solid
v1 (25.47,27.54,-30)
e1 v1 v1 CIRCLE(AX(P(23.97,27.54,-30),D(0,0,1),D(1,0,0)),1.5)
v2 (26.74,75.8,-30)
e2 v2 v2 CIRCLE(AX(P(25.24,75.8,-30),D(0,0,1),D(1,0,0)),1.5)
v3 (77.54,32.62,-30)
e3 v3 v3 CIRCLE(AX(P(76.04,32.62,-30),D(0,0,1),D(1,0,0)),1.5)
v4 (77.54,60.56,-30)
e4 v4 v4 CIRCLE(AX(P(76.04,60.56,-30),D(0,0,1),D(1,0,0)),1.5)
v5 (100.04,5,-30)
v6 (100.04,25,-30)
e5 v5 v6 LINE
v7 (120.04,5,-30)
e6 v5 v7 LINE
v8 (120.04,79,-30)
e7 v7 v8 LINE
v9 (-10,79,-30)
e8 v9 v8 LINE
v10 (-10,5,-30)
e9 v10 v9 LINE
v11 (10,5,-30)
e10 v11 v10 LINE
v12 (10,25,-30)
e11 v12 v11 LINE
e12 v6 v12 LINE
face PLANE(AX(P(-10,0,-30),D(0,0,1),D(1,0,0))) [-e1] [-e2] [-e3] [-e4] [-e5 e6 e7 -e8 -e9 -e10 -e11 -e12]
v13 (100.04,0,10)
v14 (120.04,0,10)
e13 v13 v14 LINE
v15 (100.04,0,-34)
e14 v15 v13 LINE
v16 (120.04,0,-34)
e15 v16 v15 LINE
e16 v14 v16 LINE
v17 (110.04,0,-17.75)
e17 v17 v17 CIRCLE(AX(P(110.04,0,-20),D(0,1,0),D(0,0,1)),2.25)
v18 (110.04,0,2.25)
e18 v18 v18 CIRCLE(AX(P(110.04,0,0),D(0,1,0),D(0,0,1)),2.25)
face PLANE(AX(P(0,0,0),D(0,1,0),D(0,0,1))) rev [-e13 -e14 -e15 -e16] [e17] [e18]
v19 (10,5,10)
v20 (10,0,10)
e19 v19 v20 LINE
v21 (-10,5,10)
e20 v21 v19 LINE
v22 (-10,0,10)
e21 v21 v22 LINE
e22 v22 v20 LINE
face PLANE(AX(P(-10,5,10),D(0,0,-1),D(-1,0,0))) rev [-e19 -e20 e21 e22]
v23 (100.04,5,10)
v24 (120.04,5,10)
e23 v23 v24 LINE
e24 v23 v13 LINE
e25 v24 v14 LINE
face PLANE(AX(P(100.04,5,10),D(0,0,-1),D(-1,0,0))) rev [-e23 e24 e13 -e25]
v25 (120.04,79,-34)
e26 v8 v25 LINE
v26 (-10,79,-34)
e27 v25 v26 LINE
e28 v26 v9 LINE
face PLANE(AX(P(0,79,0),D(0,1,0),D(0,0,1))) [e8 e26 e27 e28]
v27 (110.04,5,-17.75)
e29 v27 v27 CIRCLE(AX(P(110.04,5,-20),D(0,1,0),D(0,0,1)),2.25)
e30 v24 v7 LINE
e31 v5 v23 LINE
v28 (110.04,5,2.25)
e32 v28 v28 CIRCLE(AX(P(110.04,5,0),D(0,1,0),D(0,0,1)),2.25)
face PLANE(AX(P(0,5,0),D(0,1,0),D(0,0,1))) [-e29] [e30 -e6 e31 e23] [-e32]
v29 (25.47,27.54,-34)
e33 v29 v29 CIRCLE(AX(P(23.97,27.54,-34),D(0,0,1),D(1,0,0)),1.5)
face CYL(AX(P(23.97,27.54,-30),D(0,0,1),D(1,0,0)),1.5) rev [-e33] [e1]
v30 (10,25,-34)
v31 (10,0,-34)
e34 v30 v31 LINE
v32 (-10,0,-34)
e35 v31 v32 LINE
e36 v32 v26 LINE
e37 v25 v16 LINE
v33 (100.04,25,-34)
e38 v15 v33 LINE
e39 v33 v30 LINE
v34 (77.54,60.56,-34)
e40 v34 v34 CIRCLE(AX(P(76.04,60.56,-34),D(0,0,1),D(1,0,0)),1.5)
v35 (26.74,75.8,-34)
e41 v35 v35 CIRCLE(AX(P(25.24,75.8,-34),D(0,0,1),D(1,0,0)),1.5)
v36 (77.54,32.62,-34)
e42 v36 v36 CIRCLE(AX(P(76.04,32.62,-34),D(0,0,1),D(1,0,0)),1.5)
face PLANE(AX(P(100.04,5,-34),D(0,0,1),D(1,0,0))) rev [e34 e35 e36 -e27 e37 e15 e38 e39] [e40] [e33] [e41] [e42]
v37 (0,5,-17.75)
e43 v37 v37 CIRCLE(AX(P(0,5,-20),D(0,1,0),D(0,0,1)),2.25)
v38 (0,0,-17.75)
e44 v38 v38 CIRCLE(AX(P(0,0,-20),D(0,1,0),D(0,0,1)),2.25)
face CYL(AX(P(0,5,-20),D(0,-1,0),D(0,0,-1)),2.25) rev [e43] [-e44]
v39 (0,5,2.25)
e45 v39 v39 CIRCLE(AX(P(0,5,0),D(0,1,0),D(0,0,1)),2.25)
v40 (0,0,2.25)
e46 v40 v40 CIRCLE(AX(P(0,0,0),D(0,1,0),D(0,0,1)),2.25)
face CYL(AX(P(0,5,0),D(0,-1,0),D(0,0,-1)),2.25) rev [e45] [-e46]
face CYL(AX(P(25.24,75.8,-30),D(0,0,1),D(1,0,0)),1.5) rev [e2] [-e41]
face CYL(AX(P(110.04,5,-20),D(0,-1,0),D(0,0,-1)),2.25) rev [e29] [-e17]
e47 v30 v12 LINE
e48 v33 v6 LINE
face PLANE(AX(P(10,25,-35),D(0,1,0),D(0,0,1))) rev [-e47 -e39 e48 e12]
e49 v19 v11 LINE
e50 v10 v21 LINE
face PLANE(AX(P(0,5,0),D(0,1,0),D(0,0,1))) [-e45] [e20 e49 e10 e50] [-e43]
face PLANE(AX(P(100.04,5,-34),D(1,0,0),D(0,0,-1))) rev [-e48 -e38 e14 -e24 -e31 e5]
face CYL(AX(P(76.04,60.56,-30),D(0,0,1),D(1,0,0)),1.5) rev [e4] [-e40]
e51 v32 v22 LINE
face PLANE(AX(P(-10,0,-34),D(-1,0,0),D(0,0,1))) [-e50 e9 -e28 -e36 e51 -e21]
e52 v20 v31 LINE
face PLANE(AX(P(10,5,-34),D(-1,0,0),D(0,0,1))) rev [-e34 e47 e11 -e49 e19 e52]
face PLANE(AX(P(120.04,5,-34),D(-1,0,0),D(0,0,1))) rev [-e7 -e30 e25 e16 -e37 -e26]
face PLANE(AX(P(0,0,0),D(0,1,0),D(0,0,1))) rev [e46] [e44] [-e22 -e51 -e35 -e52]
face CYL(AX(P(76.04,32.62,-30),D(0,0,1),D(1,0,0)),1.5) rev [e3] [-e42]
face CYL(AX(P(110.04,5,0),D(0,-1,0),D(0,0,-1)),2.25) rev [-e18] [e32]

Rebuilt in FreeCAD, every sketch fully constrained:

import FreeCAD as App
import Part
import Sketcher

doc = App.newDocument("Part")
body = doc.addObject("PartDesign::Body", "Body")

# Sketch on XZ plane
sketch1 = body.newObject("Sketcher::SketchObject", "Sketch")
sketch1.AttachmentSupport = (doc.getObject("XZ_Plane"), [""])
sketch1.MapMode = "FlatFace"
sketch1.addGeometry(Part.LineSegment(App.Vector(-10, -34, 0), App.Vector(-10, 10, 0)), False)
sketch1.addGeometry(Part.LineSegment(App.Vector(-10, 10, 0), App.Vector(10, 10, 0)), False)
sketch1.addGeometry(Part.LineSegment(App.Vector(10, 10, 0), App.Vector(10, -34, 0)), False)
sketch1.addGeometry(Part.LineSegment(App.Vector(10, -34, 0), App.Vector(-10, -34, 0)), False)
sketch1.addGeometry(Part.Circle(App.Vector(0, 0, 0), App.Vector(0, 0, 1), 2.25), False)
sketch1.addGeometry(Part.Circle(App.Vector(0, -20, 0), App.Vector(0, 0, 1), 2.25), False)
sketch1.addConstraint(Sketcher.Constraint("Coincident", 0, 2, 1, 1))
sketch1.addConstraint(Sketcher.Constraint("Coincident", 1, 2, 2, 1))
sketch1.addConstraint(Sketcher.Constraint("Coincident", 2, 2, 3, 1))
sketch1.addConstraint(Sketcher.Constraint("Coincident", 3, 2, 0, 1))
sketch1.addConstraint(Sketcher.Constraint("Vertical", 0))
sketch1.addConstraint(Sketcher.Constraint("Horizontal", 1))
sketch1.addConstraint(Sketcher.Constraint("Vertical", 2))
sketch1.addConstraint(Sketcher.Constraint("Horizontal", 3))
sketch1.addConstraint(Sketcher.Constraint("Coincident", 4, 3, -1, 1))
sketch1.addConstraint(Sketcher.Constraint("Equal", 4, 5))
sketch1.addConstraint(Sketcher.Constraint("PointOnObject", 5, 3, -2))
sketch1.addConstraint(Sketcher.Constraint("Diameter", 4, 4.5))
sketch1.addConstraint(Sketcher.Constraint("DistanceX", 1, 1, 1, 2, 20.0))
sketch1.addConstraint(Sketcher.Constraint("DistanceY", 0, 1, 0, 2, 44.0))
sketch1.addConstraint(Sketcher.Constraint("DistanceY", 5, 3, -1, 1, 20.0))
sketch1.addConstraint(Sketcher.Constraint("DistanceX", 0, 2, -1, 1, 10.0))
sketch1.addConstraint(Sketcher.Constraint("DistanceY", -1, 1, 0, 2, 10.0))
pad1 = body.newObject("PartDesign::Pad", "Pad")
pad1.Profile = sketch1
pad1.Length = 5
pad1.Reversed = True
body2 = doc.addObject("PartDesign::Body", "Body001")

# Sketch on XZ plane
sketch2 = body2.newObject("Sketcher::SketchObject", "Sketch001")
sketch2.AttachmentSupport = (doc.getObject("XZ_Plane001"), [""])
sketch2.MapMode = "FlatFace"
sketch2.addGeometry(Part.LineSegment(App.Vector(100.04, -34, 0), App.Vector(100.04, 10, 0)), False)
sketch2.addGeometry(Part.LineSegment(App.Vector(100.04, 10, 0), App.Vector(120.04, 10, 0)), False)
sketch2.addGeometry(Part.LineSegment(App.Vector(120.04, 10, 0), App.Vector(120.04, -34, 0)), False)
sketch2.addGeometry(Part.LineSegment(App.Vector(120.04, -34, 0), App.Vector(100.04, -34, 0)), False)
sketch2.addGeometry(Part.Circle(App.Vector(110.04, 0, 0), App.Vector(0, 0, 1), 2.25), False)
sketch2.addGeometry(Part.Circle(App.Vector(110.04, -20, 0), App.Vector(0, 0, 1), 2.25), False)
sketch2.addConstraint(Sketcher.Constraint("Coincident", 0, 2, 1, 1))
sketch2.addConstraint(Sketcher.Constraint("Coincident", 1, 2, 2, 1))
sketch2.addConstraint(Sketcher.Constraint("Coincident", 2, 2, 3, 1))
sketch2.addConstraint(Sketcher.Constraint("Coincident", 3, 2, 0, 1))
sketch2.addConstraint(Sketcher.Constraint("Vertical", 0))
sketch2.addConstraint(Sketcher.Constraint("Horizontal", 1))
sketch2.addConstraint(Sketcher.Constraint("Vertical", 2))
sketch2.addConstraint(Sketcher.Constraint("Horizontal", 3))
sketch2.addConstraint(Sketcher.Constraint("Equal", 4, 5))
sketch2.addConstraint(Sketcher.Constraint("PointOnObject", 4, 3, -1))
sketch2.addConstraint(Sketcher.Constraint("Vertical", 4, 3, 5, 3))
sketch2.addConstraint(Sketcher.Constraint("Diameter", 4, 4.5))
sketch2.addConstraint(Sketcher.Constraint("DistanceX", 1, 1, 1, 2, 20.0))
sketch2.addConstraint(Sketcher.Constraint("DistanceY", 0, 1, 0, 2, 44.0))
sketch2.addConstraint(Sketcher.Constraint("DistanceY", 5, 3, -1, 1, 20.0))
sketch2.addConstraint(Sketcher.Constraint("DistanceY", -1, 1, 0, 2, 10.0))
sketch2.addConstraint(Sketcher.Constraint("DistanceX", 0, 2, 4, 3, 10.0))
sketch2.addConstraint(Sketcher.Constraint("DistanceX", -1, 1, 4, 3, 110.04))
pad2 = body2.newObject("PartDesign::Pad", "Pad001")
pad2.Profile = sketch2
pad2.Length = 5
pad2.Reversed = True
body.AllowCompound = True
doc.recompute()

boolean = body.newObject("PartDesign::Boolean", "Boolean")
boolean.Type = "Fuse"
boolean.addObjects([body2])

# Sketch on XZ plane
sketch3 = body.newObject("Sketcher::SketchObject", "Sketch002")
sketch3.AttachmentSupport = (doc.getObject("XZ_Plane"), [""])
sketch3.MapMode = "FlatFace"
sketch3.AttachmentOffset = App.Placement(App.Vector(0, 0, -5), App.Rotation())
sketch3.addGeometry(Part.LineSegment(App.Vector(-10, -34, 0), App.Vector(-10, -30, 0)), False)
sketch3.addGeometry(Part.LineSegment(App.Vector(-10, -30, 0), App.Vector(120.04, -30, 0)), False)
sketch3.addGeometry(Part.LineSegment(App.Vector(120.04, -30, 0), App.Vector(120.04, -34, 0)), False)
sketch3.addGeometry(Part.LineSegment(App.Vector(120.04, -34, 0), App.Vector(-10, -34, 0)), False)
sketch3.addConstraint(Sketcher.Constraint("Coincident", 0, 2, 1, 1))
sketch3.addConstraint(Sketcher.Constraint("Coincident", 1, 2, 2, 1))
sketch3.addConstraint(Sketcher.Constraint("Coincident", 2, 2, 3, 1))
sketch3.addConstraint(Sketcher.Constraint("Coincident", 3, 2, 0, 1))
sketch3.addConstraint(Sketcher.Constraint("Vertical", 0))
sketch3.addConstraint(Sketcher.Constraint("Horizontal", 1))
sketch3.addConstraint(Sketcher.Constraint("Vertical", 2))
sketch3.addConstraint(Sketcher.Constraint("Horizontal", 3))
sketch3.addConstraint(Sketcher.Constraint("DistanceY", 0, 1, 0, 2, 4.0))
sketch3.addConstraint(Sketcher.Constraint("DistanceX", 0, 2, -1, 1, 10.0))
sketch3.addConstraint(Sketcher.Constraint("DistanceY", 0, 2, -1, 1, 30.0))
sketch3.addConstraint(Sketcher.Constraint("DistanceX", 1, 1, 1, 2, 130.04))
pad3 = body.newObject("PartDesign::Pad", "Pad002")
pad3.Profile = sketch3
pad3.Type = "TwoLengths"
pad3.Length = 74
pad3.Length2 = 5
pad3.Reversed = True

# Sketch on XY plane
sketch4 = body.newObject("Sketcher::SketchObject", "Sketch003")
sketch4.AttachmentSupport = (doc.getObject("XY_Plane"), [""])
sketch4.MapMode = "FlatFace"
sketch4.AttachmentOffset = App.Placement(App.Vector(0, 0, -30), App.Rotation())
sketch4.addGeometry(Part.LineSegment(App.Vector(10, 25, 0), App.Vector(10, 0, 0)), False)
sketch4.addGeometry(Part.LineSegment(App.Vector(10, 0, 0), App.Vector(100.04, 0, 0)), False)
sketch4.addGeometry(Part.LineSegment(App.Vector(100.04, 0, 0), App.Vector(100.04, 25, 0)), False)
sketch4.addGeometry(Part.LineSegment(App.Vector(100.04, 25, 0), App.Vector(10, 25, 0)), False)
sketch4.addConstraint(Sketcher.Constraint("Coincident", 0, 2, 1, 1))
sketch4.addConstraint(Sketcher.Constraint("Coincident", 1, 2, 2, 1))
sketch4.addConstraint(Sketcher.Constraint("Coincident", 2, 2, 3, 1))
sketch4.addConstraint(Sketcher.Constraint("Coincident", 3, 2, 0, 1))
sketch4.addConstraint(Sketcher.Constraint("Vertical", 0))
sketch4.addConstraint(Sketcher.Constraint("Horizontal", 1))
sketch4.addConstraint(Sketcher.Constraint("Vertical", 2))
sketch4.addConstraint(Sketcher.Constraint("Horizontal", 3))
sketch4.addConstraint(Sketcher.Constraint("PointOnObject", 0, 2, -1))
sketch4.addConstraint(Sketcher.Constraint("DistanceY", 0, 2, 0, 1, 25.0))
sketch4.addConstraint(Sketcher.Constraint("DistanceX", -1, 1, 0, 2, 10.0))
sketch4.addConstraint(Sketcher.Constraint("DistanceX", 1, 1, 1, 2, 90.04))
pocket1 = body.newObject("PartDesign::Pocket", "Pocket")
pocket1.Profile = sketch4
pocket1.Length = 5

# Sketch on XY plane
sketch5 = body.newObject("Sketcher::SketchObject", "Sketch004")
sketch5.AttachmentSupport = (doc.getObject("XY_Plane"), [""])
sketch5.MapMode = "FlatFace"
sketch5.AttachmentOffset = App.Placement(App.Vector(0, 0, -30), App.Rotation())
sketch5.addGeometry(Part.Circle(App.Vector(25.24, 75.8, 0), App.Vector(0, 0, 1), 1.5), False)
sketch5.addGeometry(Part.Circle(App.Vector(76.04, 60.56, 0), App.Vector(0, 0, 1), 1.5), False)
sketch5.addGeometry(Part.Circle(App.Vector(76.04, 32.62, 0), App.Vector(0, 0, 1), 1.5), False)
sketch5.addGeometry(Part.Circle(App.Vector(23.97, 27.54, 0), App.Vector(0, 0, 1), 1.5), False)
sketch5.addConstraint(Sketcher.Constraint("Equal", 0, 1))
sketch5.addConstraint(Sketcher.Constraint("Equal", 1, 2))
sketch5.addConstraint(Sketcher.Constraint("Equal", 2, 3))
sketch5.addConstraint(Sketcher.Constraint("Vertical", 1, 3, 2, 3))
sketch5.addConstraint(Sketcher.Constraint("Diameter", 0, 3.0))
sketch5.addConstraint(Sketcher.Constraint("DistanceY", -1, 1, 0, 3, 75.8))
sketch5.addConstraint(Sketcher.Constraint("DistanceX", 0, 3, 1, 3, 50.8))
sketch5.addConstraint(Sketcher.Constraint("DistanceX", -1, 1, 0, 3, 25.24))
sketch5.addConstraint(Sketcher.Constraint("DistanceY", -1, 1, 1, 3, 60.56))
sketch5.addConstraint(Sketcher.Constraint("DistanceY", -1, 1, 2, 3, 32.62))
sketch5.addConstraint(Sketcher.Constraint("DistanceX", -1, 1, 3, 3, 23.97))
sketch5.addConstraint(Sketcher.Constraint("DistanceY", -1, 1, 3, 3, 27.54))
doc.recompute()
hole = body.newObject("PartDesign::Hole", "Hole")
hole.Profile = sketch5
hole.ThreadType = "None"
hole.Diameter = 3
hole.DepthType = "Dimension"
hole.Depth = 5
hole.DrillPoint = "Angled"
hole.DrillPointAngle = 118

doc.recompute()
